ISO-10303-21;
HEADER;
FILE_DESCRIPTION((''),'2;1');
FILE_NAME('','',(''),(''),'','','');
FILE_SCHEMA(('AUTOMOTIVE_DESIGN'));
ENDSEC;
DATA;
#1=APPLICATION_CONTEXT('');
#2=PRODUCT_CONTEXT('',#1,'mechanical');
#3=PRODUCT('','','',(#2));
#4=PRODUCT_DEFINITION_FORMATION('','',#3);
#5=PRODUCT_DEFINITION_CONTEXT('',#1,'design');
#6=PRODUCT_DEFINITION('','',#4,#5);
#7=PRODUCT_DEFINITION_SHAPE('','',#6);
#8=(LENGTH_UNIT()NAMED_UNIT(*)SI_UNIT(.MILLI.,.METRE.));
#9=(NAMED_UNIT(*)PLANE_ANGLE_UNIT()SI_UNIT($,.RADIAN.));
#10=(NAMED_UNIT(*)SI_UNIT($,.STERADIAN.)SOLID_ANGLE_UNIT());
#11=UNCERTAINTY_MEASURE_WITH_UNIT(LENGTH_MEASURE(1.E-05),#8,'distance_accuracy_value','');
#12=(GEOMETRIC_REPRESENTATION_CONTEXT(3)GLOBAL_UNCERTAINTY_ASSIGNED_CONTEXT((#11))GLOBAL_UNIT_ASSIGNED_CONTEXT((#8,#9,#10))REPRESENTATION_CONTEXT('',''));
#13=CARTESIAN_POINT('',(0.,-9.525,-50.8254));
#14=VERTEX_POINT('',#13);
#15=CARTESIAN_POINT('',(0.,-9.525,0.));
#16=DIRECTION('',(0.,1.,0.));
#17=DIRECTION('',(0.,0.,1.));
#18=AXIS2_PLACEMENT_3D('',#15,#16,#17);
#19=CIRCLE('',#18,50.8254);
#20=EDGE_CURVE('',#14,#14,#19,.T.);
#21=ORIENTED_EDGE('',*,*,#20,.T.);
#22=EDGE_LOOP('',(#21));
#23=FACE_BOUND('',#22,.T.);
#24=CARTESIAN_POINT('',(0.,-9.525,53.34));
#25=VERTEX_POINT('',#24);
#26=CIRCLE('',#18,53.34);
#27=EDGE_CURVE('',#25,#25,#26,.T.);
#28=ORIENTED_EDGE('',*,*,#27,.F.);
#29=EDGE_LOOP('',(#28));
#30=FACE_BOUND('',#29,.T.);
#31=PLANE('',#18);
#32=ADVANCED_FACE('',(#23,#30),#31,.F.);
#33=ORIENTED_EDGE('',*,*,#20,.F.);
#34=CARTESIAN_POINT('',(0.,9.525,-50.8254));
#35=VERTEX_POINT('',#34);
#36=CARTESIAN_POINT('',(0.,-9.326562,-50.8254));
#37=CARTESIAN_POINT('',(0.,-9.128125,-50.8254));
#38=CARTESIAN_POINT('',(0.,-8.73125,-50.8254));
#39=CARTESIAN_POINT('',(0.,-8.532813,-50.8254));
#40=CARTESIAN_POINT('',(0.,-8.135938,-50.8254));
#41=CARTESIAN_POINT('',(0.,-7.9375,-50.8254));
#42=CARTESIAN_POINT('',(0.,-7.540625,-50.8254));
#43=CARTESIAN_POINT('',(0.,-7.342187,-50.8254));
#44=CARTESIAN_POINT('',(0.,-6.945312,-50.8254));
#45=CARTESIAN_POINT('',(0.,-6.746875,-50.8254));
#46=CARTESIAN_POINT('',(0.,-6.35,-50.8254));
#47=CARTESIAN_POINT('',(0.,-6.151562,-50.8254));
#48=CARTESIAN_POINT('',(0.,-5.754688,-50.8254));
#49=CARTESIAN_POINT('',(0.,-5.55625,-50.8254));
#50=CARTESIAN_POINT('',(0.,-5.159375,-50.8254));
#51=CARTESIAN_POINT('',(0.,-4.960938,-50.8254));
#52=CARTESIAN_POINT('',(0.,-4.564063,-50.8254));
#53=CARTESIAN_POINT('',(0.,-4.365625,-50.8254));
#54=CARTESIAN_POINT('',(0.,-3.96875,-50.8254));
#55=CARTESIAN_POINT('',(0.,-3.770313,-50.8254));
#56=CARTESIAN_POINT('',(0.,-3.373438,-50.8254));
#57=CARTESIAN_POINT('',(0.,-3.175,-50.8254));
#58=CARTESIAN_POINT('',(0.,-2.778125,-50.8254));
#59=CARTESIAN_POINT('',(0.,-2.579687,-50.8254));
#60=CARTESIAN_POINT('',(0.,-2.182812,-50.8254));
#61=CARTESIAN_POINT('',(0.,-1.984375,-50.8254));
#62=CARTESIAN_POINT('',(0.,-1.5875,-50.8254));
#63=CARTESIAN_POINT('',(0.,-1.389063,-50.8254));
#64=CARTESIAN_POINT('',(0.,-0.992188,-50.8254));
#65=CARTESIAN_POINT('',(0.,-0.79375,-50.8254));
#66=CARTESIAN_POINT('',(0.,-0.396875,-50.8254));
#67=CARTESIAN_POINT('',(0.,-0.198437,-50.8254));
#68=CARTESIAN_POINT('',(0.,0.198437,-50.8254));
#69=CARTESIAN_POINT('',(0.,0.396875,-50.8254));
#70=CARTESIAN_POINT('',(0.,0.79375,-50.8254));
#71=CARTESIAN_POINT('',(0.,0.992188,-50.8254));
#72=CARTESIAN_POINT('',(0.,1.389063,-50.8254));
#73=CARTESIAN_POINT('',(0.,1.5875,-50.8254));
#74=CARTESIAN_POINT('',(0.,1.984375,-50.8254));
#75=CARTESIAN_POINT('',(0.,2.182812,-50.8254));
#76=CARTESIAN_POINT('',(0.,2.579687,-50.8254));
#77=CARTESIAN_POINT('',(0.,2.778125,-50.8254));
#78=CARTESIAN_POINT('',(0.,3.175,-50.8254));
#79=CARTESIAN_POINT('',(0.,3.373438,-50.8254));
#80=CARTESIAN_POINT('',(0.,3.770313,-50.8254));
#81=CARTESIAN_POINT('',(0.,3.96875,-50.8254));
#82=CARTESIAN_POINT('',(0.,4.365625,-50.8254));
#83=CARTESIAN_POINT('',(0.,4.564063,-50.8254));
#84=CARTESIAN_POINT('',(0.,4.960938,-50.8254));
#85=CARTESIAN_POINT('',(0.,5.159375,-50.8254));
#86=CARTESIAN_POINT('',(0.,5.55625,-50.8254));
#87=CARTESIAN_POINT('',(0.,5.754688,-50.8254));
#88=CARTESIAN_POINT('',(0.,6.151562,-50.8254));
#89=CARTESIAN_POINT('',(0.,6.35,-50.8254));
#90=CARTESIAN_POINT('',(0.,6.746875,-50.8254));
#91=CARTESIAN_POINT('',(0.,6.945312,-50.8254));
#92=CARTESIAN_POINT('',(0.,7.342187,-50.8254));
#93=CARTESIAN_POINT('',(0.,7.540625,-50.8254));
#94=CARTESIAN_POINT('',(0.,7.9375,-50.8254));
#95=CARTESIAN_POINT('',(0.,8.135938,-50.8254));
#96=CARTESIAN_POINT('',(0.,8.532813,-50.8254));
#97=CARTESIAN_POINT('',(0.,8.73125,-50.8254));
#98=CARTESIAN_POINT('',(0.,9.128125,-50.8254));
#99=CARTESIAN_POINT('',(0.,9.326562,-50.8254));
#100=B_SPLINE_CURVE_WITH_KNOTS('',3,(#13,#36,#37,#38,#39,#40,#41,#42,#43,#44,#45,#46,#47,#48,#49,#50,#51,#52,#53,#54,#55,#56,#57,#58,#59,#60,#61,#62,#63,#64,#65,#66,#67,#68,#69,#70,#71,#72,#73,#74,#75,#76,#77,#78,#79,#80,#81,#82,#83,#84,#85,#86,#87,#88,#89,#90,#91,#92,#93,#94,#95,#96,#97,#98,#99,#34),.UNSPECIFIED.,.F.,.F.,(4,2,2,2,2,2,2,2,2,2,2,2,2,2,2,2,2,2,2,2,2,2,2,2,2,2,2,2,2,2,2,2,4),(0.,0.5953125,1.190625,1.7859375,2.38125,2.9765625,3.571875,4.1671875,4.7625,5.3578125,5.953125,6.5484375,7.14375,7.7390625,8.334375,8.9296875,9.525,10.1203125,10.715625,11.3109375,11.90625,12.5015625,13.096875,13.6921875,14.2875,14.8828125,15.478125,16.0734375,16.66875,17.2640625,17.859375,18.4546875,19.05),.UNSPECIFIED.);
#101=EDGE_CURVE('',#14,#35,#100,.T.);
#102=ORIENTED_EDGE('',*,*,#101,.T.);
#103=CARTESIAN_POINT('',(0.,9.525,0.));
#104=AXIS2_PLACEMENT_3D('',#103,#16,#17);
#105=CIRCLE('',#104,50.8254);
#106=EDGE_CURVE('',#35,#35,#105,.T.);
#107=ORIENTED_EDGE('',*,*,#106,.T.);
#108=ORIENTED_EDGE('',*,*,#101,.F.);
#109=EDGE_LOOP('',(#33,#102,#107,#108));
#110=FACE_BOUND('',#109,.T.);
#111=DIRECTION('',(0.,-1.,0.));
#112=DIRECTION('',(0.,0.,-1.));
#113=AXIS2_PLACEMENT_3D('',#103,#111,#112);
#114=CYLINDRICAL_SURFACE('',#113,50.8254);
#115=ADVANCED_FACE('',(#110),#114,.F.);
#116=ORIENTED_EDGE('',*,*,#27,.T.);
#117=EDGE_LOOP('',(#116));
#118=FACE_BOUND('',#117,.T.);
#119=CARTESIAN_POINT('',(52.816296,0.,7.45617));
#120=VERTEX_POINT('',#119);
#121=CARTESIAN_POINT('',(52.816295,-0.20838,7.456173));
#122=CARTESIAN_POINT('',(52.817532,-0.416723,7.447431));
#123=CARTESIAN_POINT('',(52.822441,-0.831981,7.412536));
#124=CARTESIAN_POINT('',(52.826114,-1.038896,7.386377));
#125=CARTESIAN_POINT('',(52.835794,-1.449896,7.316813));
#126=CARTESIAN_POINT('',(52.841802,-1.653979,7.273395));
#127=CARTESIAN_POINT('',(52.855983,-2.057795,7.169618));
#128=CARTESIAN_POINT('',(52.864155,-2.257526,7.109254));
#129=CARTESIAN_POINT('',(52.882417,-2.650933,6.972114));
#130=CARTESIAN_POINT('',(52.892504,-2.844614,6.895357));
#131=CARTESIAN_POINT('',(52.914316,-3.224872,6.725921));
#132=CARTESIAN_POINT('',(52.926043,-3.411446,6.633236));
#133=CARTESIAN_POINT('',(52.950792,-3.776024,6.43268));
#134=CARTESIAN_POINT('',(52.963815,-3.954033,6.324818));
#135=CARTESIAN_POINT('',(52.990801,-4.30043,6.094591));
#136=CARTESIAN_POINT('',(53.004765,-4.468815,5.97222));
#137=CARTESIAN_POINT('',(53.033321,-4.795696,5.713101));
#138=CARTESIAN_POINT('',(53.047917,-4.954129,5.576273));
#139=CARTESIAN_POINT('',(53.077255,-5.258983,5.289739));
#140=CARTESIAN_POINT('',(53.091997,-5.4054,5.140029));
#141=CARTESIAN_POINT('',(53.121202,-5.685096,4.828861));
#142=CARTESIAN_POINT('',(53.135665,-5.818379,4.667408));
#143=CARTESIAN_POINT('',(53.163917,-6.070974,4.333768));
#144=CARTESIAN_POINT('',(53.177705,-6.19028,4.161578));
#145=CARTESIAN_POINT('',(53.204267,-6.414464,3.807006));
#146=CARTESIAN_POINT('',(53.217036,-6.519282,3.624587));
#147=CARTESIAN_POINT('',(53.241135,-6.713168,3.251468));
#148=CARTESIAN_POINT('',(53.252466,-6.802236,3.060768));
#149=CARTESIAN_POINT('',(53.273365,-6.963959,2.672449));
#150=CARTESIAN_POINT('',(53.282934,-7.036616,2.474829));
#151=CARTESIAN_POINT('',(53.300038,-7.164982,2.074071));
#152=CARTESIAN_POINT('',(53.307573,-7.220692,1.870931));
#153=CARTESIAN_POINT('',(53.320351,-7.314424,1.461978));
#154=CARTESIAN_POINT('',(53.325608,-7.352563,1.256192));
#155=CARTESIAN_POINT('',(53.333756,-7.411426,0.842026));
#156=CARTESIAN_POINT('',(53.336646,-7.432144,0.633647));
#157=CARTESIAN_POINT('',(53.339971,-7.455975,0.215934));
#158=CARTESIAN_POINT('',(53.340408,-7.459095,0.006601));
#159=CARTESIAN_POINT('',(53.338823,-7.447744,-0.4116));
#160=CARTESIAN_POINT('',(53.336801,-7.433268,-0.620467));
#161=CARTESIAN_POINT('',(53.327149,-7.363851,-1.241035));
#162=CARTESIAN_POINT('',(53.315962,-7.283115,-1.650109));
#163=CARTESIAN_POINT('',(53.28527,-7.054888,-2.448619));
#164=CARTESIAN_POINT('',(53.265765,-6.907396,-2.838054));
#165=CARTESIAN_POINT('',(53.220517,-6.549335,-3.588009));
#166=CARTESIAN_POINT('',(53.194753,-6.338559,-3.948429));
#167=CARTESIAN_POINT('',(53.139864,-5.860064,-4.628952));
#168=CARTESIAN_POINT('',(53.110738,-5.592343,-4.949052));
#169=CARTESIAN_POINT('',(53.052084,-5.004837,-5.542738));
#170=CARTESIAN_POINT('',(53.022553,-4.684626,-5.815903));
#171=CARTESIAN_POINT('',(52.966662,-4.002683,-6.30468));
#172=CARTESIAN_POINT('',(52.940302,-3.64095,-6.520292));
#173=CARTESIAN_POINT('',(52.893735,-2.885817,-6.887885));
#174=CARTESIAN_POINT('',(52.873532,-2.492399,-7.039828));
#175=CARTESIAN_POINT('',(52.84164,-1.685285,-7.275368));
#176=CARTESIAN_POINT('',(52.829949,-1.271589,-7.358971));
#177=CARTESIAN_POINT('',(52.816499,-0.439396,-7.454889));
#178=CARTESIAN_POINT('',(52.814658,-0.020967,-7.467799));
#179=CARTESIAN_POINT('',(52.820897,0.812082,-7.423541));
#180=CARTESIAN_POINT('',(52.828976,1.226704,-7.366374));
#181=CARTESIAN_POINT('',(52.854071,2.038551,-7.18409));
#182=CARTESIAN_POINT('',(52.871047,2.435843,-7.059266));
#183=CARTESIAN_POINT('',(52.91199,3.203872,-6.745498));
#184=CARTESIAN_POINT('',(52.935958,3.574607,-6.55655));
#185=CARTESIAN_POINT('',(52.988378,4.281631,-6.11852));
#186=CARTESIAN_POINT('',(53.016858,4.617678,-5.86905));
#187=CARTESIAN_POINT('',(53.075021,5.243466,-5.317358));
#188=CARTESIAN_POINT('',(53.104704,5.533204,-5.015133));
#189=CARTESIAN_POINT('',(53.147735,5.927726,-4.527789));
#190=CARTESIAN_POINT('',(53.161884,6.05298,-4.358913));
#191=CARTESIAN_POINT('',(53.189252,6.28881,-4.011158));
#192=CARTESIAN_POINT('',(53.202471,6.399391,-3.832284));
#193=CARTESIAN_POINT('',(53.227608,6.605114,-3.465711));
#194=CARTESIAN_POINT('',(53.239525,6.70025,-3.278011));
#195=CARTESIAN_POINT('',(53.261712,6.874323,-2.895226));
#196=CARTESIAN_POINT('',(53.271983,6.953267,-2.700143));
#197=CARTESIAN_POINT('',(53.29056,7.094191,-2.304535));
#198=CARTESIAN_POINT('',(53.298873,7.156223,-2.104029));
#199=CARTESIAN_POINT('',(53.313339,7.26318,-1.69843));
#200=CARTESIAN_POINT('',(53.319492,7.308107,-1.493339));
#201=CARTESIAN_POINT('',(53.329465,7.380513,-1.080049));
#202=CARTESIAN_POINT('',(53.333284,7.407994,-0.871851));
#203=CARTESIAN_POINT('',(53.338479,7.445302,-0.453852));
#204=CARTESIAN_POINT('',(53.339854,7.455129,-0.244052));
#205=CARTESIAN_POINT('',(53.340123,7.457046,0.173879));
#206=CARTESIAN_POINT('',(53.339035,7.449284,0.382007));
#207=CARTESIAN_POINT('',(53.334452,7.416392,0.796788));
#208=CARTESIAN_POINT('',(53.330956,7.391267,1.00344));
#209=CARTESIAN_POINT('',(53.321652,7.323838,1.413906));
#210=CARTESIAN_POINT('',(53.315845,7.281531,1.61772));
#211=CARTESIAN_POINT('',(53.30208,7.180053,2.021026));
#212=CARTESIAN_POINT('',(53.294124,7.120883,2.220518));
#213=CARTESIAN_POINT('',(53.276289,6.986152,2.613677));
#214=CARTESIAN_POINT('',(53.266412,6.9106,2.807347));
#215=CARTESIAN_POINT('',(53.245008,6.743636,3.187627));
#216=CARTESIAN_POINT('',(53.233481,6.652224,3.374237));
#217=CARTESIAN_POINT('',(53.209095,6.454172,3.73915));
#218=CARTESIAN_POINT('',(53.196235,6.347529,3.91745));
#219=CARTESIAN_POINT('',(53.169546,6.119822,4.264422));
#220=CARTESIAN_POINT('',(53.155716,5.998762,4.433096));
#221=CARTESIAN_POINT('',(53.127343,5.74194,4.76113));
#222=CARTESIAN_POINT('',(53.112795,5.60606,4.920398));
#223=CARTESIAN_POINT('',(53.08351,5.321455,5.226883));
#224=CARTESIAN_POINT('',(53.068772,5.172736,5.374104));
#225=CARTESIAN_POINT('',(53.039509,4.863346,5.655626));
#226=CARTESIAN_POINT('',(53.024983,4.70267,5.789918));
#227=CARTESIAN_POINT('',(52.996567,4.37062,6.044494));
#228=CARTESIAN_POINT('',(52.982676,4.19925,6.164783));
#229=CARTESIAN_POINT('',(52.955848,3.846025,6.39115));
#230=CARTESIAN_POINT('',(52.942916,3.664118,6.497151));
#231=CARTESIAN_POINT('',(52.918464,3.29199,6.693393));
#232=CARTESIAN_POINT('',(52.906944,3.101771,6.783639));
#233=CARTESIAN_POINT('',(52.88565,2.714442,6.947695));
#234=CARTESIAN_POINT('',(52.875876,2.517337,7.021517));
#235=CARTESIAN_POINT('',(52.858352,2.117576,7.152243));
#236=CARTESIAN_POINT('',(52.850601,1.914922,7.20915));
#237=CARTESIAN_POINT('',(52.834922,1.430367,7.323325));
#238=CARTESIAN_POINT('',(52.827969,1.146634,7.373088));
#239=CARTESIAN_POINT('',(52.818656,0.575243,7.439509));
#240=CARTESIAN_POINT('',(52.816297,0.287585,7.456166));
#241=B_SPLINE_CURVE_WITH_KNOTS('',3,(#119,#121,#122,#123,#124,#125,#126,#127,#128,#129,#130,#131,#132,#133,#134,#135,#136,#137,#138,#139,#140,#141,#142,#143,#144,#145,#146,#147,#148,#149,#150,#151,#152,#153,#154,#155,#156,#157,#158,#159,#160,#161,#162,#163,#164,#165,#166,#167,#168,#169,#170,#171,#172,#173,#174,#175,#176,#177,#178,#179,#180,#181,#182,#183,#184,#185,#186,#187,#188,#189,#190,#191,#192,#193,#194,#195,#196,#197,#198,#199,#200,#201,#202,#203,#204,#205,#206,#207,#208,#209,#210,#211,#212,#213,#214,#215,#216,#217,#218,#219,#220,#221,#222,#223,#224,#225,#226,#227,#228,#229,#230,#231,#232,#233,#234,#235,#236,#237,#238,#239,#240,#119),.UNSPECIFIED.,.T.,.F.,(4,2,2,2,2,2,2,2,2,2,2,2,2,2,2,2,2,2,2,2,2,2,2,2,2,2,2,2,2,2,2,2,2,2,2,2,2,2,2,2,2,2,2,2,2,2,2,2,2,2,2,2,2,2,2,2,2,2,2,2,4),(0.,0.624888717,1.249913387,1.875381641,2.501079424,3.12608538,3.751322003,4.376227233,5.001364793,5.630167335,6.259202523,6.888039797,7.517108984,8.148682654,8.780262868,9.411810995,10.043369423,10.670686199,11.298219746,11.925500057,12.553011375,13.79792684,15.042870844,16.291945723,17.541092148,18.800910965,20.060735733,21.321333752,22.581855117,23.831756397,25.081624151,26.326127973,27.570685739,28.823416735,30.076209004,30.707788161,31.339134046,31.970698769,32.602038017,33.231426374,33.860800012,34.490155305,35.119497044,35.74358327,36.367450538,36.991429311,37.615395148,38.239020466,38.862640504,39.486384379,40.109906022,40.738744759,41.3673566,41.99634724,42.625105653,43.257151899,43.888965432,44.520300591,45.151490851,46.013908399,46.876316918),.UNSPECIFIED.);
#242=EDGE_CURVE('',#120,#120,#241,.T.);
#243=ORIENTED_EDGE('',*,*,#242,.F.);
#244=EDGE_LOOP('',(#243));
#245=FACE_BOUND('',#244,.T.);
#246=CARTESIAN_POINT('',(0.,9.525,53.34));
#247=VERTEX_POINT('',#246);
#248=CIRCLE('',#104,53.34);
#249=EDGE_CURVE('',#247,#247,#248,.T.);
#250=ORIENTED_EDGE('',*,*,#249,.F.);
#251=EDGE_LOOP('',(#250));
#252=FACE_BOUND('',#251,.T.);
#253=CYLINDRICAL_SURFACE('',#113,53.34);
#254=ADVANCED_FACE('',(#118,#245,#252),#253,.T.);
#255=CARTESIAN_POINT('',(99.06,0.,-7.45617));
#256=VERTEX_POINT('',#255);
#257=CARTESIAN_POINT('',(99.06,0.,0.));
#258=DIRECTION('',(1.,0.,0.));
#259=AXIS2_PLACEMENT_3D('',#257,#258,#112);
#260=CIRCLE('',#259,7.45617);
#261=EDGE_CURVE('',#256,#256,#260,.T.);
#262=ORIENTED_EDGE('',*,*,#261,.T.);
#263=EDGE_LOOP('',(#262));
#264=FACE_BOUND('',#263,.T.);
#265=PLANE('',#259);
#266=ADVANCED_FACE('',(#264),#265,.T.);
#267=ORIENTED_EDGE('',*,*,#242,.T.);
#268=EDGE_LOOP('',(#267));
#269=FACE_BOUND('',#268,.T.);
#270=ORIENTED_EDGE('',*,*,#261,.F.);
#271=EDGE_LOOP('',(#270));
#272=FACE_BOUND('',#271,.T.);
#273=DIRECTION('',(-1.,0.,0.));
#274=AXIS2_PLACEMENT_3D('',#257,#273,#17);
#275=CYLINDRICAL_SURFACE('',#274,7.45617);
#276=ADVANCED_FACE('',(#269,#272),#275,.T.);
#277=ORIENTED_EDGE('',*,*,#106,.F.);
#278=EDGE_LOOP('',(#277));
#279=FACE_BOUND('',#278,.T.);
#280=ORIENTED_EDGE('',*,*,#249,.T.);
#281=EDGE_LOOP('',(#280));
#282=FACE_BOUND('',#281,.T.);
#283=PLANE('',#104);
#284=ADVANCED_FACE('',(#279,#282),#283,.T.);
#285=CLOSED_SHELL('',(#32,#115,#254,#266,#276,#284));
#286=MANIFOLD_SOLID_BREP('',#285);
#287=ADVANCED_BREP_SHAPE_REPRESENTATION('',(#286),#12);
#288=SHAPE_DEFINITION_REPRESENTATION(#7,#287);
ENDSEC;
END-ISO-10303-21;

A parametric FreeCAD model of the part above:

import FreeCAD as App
import Part
import Sketcher
Q = App.Units.Quantity

doc = App.newDocument("Part")
params = doc.addObject("Spreadsheet::Sheet", "Params")
for row, (alias, value) in enumerate([
    ("sketch1_diameter", "4.2 in"),
    ("sketch1_diameter2", "4.002 in"),
    ("pad1_length", "0.75 in"),
    ("pad2_length", "3.9 in"),
    ("sketch3_diameter", "4.002 in"),
    ("pocket1_length", "3.9 in"),
], start=1):
    params.set(f"A{row}", alias)
    params.set(f"B{row}", "=" + value)
    params.setAlias(f"B{row}", alias)

body = doc.addObject("PartDesign::Body", "Body")

# Sketch on XZ plane
sketch1 = body.newObject("Sketcher::SketchObject", "Sketch")
sketch1.AttachmentSupport = (doc.getObject("XZ_Plane"), [""])
sketch1.MapMode = "FlatFace"
sketch1.addGeometry(Part.Circle(App.Vector(0, 0, 0), App.Vector(0, 0, 1), 53), False)
sketch1.addGeometry(Part.Circle(App.Vector(0, 0, 0), App.Vector(0, 0, 1), 51), False)
sketch1.addConstraint(Sketcher.Constraint("Coincident", 0, 3, -1, 1))
sketch1.addConstraint(Sketcher.Constraint("Coincident", 1, 3, -1, 1))
sketch1.addConstraint(Sketcher.Constraint("Diameter", 0, Q("4.2 in")))
sketch1.addConstraint(Sketcher.Constraint("Diameter", 1, Q("4.002 in")))
sketch1.setExpression("Constraints[2]", "Params.sketch1_diameter")
sketch1.setExpression("Constraints[3]", "Params.sketch1_diameter2")
pad1 = body.newObject("PartDesign::Pad", "Pad")
pad1.Profile = sketch1
pad1.setExpression("Length", "Params.pad1_length")
pad1.Midplane = True

# Sketch on YZ plane
sketch2 = body.newObject("Sketcher::SketchObject", "Sketch001")
sketch2.AttachmentSupport = (doc.getObject("YZ_Plane"), [""])
sketch2.MapMode = "FlatFace"
sketch2.addGeometry(Part.Circle(App.Vector(0, 0, 0), App.Vector(0, 0, 1), 7), False)
sketch2.addConstraint(Sketcher.Constraint("Coincident", 0, 3, -1, 1))
sketch2.addConstraint(Sketcher.Constraint("Diameter", 0, Q("0.5871 in")))
pad2 = body.newObject("PartDesign::Pad", "Pad001")
pad2.Profile = sketch2
pad2.setExpression("Length", "Params.pad2_length")

# Sketch on XZ plane
sketch3 = body.newObject("Sketcher::SketchObject", "Sketch002")
sketch3.AttachmentSupport = (doc.getObject("XZ_Plane"), [""])
sketch3.MapMode = "FlatFace"
sketch3.AttachmentOffset = App.Placement(App.Vector(0, 0, 0.375 * 25.4), App.Rotation())
sketch3.addGeometry(Part.Circle(App.Vector(0, 0, 0), App.Vector(0, 0, 1), 51), False)
sketch3.addConstraint(Sketcher.Constraint("Coincident", 0, 3, -1, 1))
sketch3.addConstraint(Sketcher.Constraint("Diameter", 0, Q("4.002 in")))
sketch3.setExpression("Constraints[1]", "Params.sketch3_diameter")
pocket1 = body.newObject("PartDesign::Pocket", "Pocket")
pocket1.Profile = sketch3
pocket1.setExpression("Length", "Params.pocket1_length")
pocket1.Midplane = True

doc.recompute()
